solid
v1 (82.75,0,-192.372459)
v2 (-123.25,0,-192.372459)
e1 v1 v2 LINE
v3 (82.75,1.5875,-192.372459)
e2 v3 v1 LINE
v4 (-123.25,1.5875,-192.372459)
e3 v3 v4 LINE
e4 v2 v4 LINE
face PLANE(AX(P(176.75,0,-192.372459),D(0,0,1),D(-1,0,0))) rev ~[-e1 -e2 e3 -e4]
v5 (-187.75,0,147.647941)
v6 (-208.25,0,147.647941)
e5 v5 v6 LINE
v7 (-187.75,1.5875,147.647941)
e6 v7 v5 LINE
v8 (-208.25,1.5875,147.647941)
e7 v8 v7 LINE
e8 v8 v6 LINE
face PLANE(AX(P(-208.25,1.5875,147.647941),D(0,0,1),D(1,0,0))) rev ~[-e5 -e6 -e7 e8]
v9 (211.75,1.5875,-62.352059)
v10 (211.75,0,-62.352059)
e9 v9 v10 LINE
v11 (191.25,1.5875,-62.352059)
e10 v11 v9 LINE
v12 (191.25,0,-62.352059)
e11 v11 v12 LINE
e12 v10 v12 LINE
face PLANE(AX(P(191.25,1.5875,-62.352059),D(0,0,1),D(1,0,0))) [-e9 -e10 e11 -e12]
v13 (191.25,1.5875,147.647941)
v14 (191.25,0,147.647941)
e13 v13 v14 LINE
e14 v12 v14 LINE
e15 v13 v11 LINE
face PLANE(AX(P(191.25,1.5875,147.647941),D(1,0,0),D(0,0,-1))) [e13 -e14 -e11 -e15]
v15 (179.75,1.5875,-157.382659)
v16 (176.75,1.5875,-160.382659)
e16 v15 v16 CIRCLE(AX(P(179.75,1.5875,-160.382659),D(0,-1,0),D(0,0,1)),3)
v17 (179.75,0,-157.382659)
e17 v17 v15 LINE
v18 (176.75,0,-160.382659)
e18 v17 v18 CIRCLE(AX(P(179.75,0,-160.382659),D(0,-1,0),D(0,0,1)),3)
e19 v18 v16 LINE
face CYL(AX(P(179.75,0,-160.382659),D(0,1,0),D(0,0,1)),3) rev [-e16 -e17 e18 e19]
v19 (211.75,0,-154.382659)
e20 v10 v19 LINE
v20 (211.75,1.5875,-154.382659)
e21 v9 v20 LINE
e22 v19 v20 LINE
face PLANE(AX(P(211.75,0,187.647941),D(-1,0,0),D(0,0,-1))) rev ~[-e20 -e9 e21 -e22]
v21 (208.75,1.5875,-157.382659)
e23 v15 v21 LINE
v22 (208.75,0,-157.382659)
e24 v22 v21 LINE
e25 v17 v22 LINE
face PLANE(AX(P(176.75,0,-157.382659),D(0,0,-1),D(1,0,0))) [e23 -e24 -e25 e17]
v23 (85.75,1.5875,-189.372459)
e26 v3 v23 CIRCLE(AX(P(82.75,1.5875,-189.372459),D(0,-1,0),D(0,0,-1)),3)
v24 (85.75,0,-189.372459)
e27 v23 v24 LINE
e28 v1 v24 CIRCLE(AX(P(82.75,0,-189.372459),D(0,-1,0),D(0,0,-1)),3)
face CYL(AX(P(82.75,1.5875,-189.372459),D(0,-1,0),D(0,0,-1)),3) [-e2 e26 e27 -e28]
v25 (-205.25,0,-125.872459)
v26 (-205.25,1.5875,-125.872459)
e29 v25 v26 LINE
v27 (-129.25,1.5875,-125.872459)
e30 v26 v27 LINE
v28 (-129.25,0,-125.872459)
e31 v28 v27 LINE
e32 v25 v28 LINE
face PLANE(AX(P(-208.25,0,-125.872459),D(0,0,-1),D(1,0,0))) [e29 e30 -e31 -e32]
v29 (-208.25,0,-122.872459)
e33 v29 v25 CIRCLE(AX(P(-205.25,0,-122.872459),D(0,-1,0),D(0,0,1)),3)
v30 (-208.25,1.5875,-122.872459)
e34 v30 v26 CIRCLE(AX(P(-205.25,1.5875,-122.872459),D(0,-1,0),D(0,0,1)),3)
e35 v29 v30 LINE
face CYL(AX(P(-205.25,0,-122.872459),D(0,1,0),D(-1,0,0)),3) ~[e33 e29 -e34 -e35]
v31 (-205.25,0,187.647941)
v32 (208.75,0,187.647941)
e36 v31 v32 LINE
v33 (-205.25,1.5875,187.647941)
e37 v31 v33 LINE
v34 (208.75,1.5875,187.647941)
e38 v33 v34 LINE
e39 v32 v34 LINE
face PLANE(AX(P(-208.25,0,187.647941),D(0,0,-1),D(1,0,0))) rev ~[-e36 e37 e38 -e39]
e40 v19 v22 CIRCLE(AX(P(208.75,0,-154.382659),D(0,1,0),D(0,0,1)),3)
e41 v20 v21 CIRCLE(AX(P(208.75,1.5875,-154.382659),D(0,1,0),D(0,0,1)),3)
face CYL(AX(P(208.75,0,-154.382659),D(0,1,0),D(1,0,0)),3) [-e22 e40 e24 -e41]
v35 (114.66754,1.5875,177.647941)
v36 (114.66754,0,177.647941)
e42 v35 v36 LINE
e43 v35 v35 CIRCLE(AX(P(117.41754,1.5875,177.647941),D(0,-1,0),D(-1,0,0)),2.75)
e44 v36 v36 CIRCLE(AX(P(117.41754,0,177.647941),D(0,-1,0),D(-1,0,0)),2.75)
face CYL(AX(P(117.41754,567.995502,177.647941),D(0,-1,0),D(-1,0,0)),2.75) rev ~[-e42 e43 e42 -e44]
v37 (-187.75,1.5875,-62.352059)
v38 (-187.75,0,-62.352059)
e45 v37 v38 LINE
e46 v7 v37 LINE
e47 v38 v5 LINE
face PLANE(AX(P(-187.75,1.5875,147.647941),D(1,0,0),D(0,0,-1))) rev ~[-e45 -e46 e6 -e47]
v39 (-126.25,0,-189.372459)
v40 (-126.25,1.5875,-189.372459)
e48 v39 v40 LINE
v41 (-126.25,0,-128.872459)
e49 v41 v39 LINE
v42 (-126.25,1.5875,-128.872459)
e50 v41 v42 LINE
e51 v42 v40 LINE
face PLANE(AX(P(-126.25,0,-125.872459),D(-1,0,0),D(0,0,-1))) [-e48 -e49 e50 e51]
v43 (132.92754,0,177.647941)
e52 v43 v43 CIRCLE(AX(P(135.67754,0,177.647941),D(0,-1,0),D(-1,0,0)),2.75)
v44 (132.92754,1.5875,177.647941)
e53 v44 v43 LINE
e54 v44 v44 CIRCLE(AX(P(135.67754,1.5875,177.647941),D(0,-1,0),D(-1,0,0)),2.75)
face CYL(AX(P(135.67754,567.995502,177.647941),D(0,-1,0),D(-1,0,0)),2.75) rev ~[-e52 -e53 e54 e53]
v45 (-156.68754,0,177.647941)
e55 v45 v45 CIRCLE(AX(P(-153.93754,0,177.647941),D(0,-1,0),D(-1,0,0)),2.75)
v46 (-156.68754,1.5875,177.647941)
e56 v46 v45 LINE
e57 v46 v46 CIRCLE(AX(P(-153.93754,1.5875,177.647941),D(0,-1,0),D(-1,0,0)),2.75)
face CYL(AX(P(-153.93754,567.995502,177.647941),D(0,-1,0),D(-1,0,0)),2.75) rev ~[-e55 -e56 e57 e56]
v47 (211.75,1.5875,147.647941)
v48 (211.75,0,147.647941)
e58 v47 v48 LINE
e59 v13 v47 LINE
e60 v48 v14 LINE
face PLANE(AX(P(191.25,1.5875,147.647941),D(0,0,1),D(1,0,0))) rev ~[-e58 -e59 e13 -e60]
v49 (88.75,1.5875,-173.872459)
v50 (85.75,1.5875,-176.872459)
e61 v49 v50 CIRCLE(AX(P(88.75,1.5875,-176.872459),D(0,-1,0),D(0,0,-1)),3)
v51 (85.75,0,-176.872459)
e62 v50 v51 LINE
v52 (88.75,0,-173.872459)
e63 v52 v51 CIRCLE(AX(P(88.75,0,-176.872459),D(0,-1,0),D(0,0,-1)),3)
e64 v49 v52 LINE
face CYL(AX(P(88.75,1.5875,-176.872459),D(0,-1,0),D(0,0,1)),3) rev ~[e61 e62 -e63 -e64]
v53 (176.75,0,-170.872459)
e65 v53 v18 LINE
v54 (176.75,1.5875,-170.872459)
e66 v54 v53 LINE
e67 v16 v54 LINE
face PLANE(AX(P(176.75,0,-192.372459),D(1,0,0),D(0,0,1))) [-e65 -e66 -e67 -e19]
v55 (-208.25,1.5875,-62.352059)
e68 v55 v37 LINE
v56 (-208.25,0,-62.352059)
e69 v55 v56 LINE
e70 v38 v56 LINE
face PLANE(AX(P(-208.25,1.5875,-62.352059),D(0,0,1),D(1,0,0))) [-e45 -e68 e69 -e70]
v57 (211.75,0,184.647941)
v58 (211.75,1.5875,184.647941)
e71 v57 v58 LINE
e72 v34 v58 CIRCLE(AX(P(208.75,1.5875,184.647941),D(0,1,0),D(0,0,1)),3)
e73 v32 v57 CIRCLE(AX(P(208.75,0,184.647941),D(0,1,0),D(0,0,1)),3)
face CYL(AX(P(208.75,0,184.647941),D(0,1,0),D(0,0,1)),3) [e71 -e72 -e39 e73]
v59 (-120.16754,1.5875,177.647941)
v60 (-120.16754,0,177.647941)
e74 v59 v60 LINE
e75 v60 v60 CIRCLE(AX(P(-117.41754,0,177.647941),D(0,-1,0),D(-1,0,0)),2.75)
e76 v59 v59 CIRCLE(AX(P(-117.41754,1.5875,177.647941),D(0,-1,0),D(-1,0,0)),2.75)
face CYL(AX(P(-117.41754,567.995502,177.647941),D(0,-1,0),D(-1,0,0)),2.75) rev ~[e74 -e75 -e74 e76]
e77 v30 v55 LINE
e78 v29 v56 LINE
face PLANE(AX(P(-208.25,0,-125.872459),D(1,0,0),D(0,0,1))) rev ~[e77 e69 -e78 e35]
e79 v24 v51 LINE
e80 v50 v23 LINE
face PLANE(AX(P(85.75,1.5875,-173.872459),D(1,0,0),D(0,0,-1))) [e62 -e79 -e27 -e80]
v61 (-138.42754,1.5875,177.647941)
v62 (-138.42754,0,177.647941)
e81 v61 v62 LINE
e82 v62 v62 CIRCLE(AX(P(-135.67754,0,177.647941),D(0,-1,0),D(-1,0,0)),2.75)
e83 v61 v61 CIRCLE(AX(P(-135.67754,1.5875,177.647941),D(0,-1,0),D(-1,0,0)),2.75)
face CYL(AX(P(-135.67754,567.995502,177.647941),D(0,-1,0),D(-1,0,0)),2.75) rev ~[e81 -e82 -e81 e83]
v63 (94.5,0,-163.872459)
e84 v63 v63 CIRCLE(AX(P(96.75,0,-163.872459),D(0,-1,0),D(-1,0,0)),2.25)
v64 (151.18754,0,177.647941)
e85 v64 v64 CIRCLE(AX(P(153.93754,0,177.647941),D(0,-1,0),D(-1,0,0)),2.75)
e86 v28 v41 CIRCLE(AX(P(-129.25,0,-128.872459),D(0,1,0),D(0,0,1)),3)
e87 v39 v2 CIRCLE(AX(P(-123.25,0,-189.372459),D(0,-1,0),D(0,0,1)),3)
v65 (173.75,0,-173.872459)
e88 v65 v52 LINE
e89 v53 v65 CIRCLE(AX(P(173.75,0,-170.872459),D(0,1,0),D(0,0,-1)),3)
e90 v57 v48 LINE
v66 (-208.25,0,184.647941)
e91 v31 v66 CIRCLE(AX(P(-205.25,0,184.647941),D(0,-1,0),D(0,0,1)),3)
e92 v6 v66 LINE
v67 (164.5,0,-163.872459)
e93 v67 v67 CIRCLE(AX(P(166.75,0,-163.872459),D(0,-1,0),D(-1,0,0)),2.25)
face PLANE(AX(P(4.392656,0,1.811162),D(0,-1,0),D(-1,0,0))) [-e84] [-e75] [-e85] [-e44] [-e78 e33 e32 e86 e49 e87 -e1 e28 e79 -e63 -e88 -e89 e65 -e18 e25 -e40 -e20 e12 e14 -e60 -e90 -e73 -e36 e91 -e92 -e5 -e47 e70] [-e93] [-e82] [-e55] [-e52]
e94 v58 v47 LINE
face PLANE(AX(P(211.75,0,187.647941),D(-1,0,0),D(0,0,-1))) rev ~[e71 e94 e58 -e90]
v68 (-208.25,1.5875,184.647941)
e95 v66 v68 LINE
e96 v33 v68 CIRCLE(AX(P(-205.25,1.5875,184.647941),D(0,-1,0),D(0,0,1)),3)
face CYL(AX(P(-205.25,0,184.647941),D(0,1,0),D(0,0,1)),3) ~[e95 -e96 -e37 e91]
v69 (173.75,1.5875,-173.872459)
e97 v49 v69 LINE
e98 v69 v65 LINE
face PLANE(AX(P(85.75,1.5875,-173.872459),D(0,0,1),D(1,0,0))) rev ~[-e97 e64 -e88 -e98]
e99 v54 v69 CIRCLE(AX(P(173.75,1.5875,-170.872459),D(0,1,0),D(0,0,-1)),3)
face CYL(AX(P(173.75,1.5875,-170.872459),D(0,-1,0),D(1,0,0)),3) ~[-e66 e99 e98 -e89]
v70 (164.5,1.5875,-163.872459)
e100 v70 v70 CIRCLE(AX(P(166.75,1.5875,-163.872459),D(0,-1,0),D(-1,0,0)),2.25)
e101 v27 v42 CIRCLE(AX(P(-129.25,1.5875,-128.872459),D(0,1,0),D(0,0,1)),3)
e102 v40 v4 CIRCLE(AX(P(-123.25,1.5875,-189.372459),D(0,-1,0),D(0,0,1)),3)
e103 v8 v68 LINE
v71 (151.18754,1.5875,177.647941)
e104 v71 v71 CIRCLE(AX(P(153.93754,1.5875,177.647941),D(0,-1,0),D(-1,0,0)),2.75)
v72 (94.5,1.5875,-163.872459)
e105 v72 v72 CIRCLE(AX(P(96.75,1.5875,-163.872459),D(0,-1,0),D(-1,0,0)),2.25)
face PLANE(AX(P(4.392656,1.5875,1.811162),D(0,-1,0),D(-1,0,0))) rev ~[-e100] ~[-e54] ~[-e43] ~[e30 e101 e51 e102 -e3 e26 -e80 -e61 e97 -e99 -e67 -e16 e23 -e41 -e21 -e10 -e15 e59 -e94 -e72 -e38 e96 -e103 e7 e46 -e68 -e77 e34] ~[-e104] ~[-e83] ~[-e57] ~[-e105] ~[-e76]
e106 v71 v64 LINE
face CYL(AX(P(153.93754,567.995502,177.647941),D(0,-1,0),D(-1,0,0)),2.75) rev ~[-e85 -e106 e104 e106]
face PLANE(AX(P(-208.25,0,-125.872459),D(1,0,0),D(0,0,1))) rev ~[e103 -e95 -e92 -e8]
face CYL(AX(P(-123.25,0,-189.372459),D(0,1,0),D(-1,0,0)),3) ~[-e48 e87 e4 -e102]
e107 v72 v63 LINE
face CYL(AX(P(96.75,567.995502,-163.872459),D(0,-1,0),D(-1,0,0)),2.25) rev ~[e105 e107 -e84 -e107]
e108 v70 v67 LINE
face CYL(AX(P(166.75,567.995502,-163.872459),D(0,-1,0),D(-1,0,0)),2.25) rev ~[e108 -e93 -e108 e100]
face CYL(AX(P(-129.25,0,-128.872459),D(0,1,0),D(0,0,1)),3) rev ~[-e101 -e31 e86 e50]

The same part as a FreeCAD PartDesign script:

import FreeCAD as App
import Part
import Sketcher

V = App.Vector
Q = App.Units.Quantity


def edges_at(feature, points):
    """Names of the edges that pass closest to the given points."""
    edges = feature.Shape.Edges
    near = lambda p: min(range(len(edges)), key=lambda i: edges[i].distToShape(Part.Vertex(*p))[0])
    return sorted({f"Edge{near(p) + 1}" for p in points})


def add_polygon(sketch, points):
    """Adds a closed chain of lines whose ends are joined by coincident constraints."""
    first, n = sketch.GeometryCount, len(points)
    for a, b in zip(points, points[1:] + points[:1]):
        sketch.addGeometry(Part.LineSegment(App.Vector(*a, 0), App.Vector(*b, 0)), False)
    for i in range(n):
        sketch.addConstraint(Sketcher.Constraint("Coincident", first + i, 2, first + (i + 1) % n, 1))

doc = App.newDocument("Part")
body = doc.addObject("PartDesign::Body", "Body")

sketch1 = body.newObject("Sketcher::SketchObject", "Sketch")
sketch1.AttachmentSupport = (doc.getObject("XZ_Plane"), [""])
sketch1.MapMode = "FlatFace"
add_polygon(sketch1, [(-208, 188), (212, 188), (212, -157), (177, -157), (177, -192), (-126, -192), (-126, -126), (-208, -126)])
sketch1.addConstraint([
    Sketcher.Constraint("Horizontal", 0),
    Sketcher.Constraint("Vertical", 1),
    Sketcher.Constraint("Horizontal", 2),
    Sketcher.Constraint("Vertical", 3),
    Sketcher.Constraint("Horizontal", 4),
    Sketcher.Constraint("Vertical", 5),
    Sketcher.Constraint("Horizontal", 6),
    Sketcher.Constraint("Vertical", 7),
    Sketcher.Constraint("DistanceX", 0, 1, 0, 2, Q("420 mm")),
    Sketcher.Constraint("DistanceX", 2, 2, 2, 1, Q("35 mm")),
    Sketcher.Constraint("DistanceX", 4, 2, 4, 1, Q("303 mm")),
    Sketcher.Constraint("DistanceY", 5, 1, 5, 2, Q("66.5 mm")),
    Sketcher.Constraint("DistanceX", -1, 1, 0, 2, Q("211.75 mm")),
    Sketcher.Constraint("DistanceY", 1, 2, 1, 1, Q("345.0306 mm")),
    Sketcher.Constraint("DistanceY", 3, 2, 3, 1, Q("34.9898 mm")),
    Sketcher.Constraint("DistanceY", -1, 1, 0, 2, Q("187.647941 mm")),
])
pad1 = body.newObject("PartDesign::Pad", "Pad")
pad1.Profile = sketch1
pad1.Length = 1.5875
pad1.Reversed = True

sketch2 = body.newObject("Sketcher::SketchObject", "Sketch001")
sketch2.AttachmentSupport = (doc.getObject("XZ_Plane"), [""])
sketch2.MapMode = "FlatFace"
sketch2.AttachmentOffset = App.Placement(V(0, 0, -1.5875), App.Rotation())
sketch2.addGeometry([
    Part.Circle(V(-153.9, 177.6, 0), V(0, 0, 1), 2.8),
    Part.Circle(V(-135.7, 177.6, 0), V(0, 0, 1), 2.8),
    Part.Circle(V(-117.4, 177.6, 0), V(0, 0, 1), 2.8),
    Part.Circle(V(117.4, 177.6, 0), V(0, 0, 1), 2.8),
    Part.Circle(V(135.7, 177.6, 0), V(0, 0, 1), 2.8),
    Part.Circle(V(153.9, 177.6, 0), V(0, 0, 1), 2.8),
], False)
sketch2.addConstraint([
    Sketcher.Constraint("Equal", 0, 1),
    Sketcher.Constraint("Equal", 1, 2),
    Sketcher.Constraint("Equal", 2, 3),
    Sketcher.Constraint("Equal", 3, 4),
    Sketcher.Constraint("Equal", 4, 5),
    Sketcher.Constraint("Symmetric", 2, 3, 3, 3, -2),
    Sketcher.Constraint("Symmetric", 1, 3, 4, 3, -2),
    Sketcher.Constraint("Symmetric", 0, 3, 5, 3, -2),
    Sketcher.Constraint("Horizontal", 0, 3, 1, 3),
    Sketcher.Constraint("Horizontal", 1, 3, 2, 3),
    Sketcher.Constraint("Diameter", 0, Q("5.5 mm")),
    Sketcher.Constraint("DistanceX", 0, 3, 1, 3, Q("18.26 mm")),
    Sketcher.Constraint("DistanceX", 1, 3, 2, 3, Q("18.26 mm")),
    Sketcher.Constraint("DistanceX", 0, 3, -1, 1, Q("153.93754 mm")),
    Sketcher.Constraint("DistanceY", -1, 1, 0, 3, Q("177.647941 mm")),
])
doc.recompute()
hole = body.newObject("PartDesign::Hole", "Hole")
hole.Profile = sketch2
hole.ThreadType = "None"
hole.Diameter = 5.5
hole.DepthType = "ThroughAll"
hole.Reversed = True

sketch3 = body.newObject("Sketcher::SketchObject", "Sketch002")
sketch3.AttachmentSupport = (doc.getObject("XZ_Plane"), [""])
sketch3.MapMode = "FlatFace"
sketch3.AttachmentOffset = App.Placement(V(0, 0, -1.5875), App.Rotation())
add_polygon(sketch3, [(86, -192), (86, -174), (177, -174), (177, -192)])
sketch3.addConstraint([
    Sketcher.Constraint("Vertical", 0),
    Sketcher.Constraint("Horizontal", 1),
    Sketcher.Constraint("Vertical", 2),
    Sketcher.Constraint("Horizontal", 3),
    Sketcher.Constraint("DistanceX", 1, 1, 1, 2, Q("91 mm")),
    Sketcher.Constraint("DistanceY", 0, 1, 0, 2, Q("18.5 mm")),
    Sketcher.Constraint("DistanceX", -1, 1, 0, 2, Q("85.75 mm")),
    Sketcher.Constraint("DistanceY", 0, 2, -1, 1, Q("173.872459 mm")),
])
pocket1 = body.newObject("PartDesign::Pocket", "Pocket")
pocket1.Profile = sketch3
pocket1.Type = "ThroughAll"
pocket1.Midplane = True

sketch4 = body.newObject("Sketcher::SketchObject", "Sketch003")
sketch4.AttachmentSupport = (doc.getObject("XZ_Plane"), [""])
sketch4.MapMode = "FlatFace"
sketch4.AttachmentOffset = App.Placement(V(0, 0, -1.5875), App.Rotation())
sketch4.addGeometry([
    Part.Circle(V(96.8, -163.9, 0), V(0, 0, 1), 2.2),
    Part.Circle(V(166.8, -163.9, 0), V(0, 0, 1), 2.2),
], False)
sketch4.addConstraint([
    Sketcher.Constraint("Equal", 0, 1),
    Sketcher.Constraint("Horizontal", 0, 3, 1, 3),
    Sketcher.Constraint("Diameter", 0, Q("4.5 mm")),
    Sketcher.Constraint("DistanceX", 0, 3, 1, 3, Q("70 mm")),
    Sketcher.Constraint("DistanceX", -1, 1, 0, 3, Q("96.75 mm")),
    Sketcher.Constraint("DistanceY", 0, 3, -1, 1, Q("163.872459 mm")),
])
doc.recompute()
hole2 = body.newObject("PartDesign::Hole", "Hole001")
hole2.Profile = sketch4
hole2.ThreadType = "None"
hole2.Diameter = 4.5
hole2.DepthType = "ThroughAll"
hole2.Reversed = True
doc.recompute()

fillet = body.newObject("PartDesign::Fillet", "Fillet")
fillet.Base = (hole2, edges_at(hole2, [
    (211.75, 0.794, 187.648),
    (-208.25, 0.794, 187.648),
    (-208.25, 0.794, -125.872),
    (-126.25, 0.794, -125.872),
    (-126.25, 0.794, -192.372),
    (176.75, 0.794, -157.383),
    (211.75, 0.794, -157.383),
    (176.75, 0.794, -173.872),
    (85.75, 0.794, -173.872),
    (85.75, 0.794, -192.372),
]))
fillet.Radius = 3

sketch5 = body.newObject("Sketcher::SketchObject", "Sketch004")
sketch5.AttachmentSupport = (doc.getObject("XZ_Plane"), [""])
sketch5.MapMode = "FlatFace"
sketch5.AttachmentOffset = App.Placement(V(0, 0, -1.5875), App.Rotation())
add_polygon(sketch5, [(-208, -62), (-208, 148), (-188, 148), (-188, -62)])
add_polygon(sketch5, [(191, -62), (191, 148), (212, 148), (212, -62)])
sketch5.addConstraint([
    Sketcher.Constraint("Vertical", 0),
    Sketcher.Constraint("Horizontal", 1),
    Sketcher.Constraint("Vertical", 2),
    Sketcher.Constraint("Horizontal", 3),
    Sketcher.Constraint("Vertical", 4),
    Sketcher.Constraint("Horizontal", 5),
    Sketcher.Constraint("Vertical", 6),
    Sketcher.Constraint("Horizontal", 7),
    Sketcher.Constraint("Horizontal", 1, 2, 4, 2),
    Sketcher.Constraint("Horizontal", 3, 2, 6, 2),
    Sketcher.Constraint("Equal", 3, 5),
    Sketcher.Constraint("DistanceY", 0, 1, 0, 2, Q("210 mm")),
    Sketcher.Constraint("DistanceX", 1, 1, 1, 2, Q("20.5 mm")),
    Sketcher.Constraint("DistanceX", 1, 2, 4, 2, Q("379 mm")),
    Sketcher.Constraint("DistanceX", 0, 2, -1, 1, Q("208.25 mm")),
    Sketcher.Constraint("DistanceY", -1, 1, 0, 2, Q("147.647941 mm")),
])
pocket2 = body.newObject("PartDesign::Pocket", "Pocket001")
pocket2.Profile = sketch5
pocket2.Type = "ThroughAll"
pocket2.Midplane = True

doc.recompute()
